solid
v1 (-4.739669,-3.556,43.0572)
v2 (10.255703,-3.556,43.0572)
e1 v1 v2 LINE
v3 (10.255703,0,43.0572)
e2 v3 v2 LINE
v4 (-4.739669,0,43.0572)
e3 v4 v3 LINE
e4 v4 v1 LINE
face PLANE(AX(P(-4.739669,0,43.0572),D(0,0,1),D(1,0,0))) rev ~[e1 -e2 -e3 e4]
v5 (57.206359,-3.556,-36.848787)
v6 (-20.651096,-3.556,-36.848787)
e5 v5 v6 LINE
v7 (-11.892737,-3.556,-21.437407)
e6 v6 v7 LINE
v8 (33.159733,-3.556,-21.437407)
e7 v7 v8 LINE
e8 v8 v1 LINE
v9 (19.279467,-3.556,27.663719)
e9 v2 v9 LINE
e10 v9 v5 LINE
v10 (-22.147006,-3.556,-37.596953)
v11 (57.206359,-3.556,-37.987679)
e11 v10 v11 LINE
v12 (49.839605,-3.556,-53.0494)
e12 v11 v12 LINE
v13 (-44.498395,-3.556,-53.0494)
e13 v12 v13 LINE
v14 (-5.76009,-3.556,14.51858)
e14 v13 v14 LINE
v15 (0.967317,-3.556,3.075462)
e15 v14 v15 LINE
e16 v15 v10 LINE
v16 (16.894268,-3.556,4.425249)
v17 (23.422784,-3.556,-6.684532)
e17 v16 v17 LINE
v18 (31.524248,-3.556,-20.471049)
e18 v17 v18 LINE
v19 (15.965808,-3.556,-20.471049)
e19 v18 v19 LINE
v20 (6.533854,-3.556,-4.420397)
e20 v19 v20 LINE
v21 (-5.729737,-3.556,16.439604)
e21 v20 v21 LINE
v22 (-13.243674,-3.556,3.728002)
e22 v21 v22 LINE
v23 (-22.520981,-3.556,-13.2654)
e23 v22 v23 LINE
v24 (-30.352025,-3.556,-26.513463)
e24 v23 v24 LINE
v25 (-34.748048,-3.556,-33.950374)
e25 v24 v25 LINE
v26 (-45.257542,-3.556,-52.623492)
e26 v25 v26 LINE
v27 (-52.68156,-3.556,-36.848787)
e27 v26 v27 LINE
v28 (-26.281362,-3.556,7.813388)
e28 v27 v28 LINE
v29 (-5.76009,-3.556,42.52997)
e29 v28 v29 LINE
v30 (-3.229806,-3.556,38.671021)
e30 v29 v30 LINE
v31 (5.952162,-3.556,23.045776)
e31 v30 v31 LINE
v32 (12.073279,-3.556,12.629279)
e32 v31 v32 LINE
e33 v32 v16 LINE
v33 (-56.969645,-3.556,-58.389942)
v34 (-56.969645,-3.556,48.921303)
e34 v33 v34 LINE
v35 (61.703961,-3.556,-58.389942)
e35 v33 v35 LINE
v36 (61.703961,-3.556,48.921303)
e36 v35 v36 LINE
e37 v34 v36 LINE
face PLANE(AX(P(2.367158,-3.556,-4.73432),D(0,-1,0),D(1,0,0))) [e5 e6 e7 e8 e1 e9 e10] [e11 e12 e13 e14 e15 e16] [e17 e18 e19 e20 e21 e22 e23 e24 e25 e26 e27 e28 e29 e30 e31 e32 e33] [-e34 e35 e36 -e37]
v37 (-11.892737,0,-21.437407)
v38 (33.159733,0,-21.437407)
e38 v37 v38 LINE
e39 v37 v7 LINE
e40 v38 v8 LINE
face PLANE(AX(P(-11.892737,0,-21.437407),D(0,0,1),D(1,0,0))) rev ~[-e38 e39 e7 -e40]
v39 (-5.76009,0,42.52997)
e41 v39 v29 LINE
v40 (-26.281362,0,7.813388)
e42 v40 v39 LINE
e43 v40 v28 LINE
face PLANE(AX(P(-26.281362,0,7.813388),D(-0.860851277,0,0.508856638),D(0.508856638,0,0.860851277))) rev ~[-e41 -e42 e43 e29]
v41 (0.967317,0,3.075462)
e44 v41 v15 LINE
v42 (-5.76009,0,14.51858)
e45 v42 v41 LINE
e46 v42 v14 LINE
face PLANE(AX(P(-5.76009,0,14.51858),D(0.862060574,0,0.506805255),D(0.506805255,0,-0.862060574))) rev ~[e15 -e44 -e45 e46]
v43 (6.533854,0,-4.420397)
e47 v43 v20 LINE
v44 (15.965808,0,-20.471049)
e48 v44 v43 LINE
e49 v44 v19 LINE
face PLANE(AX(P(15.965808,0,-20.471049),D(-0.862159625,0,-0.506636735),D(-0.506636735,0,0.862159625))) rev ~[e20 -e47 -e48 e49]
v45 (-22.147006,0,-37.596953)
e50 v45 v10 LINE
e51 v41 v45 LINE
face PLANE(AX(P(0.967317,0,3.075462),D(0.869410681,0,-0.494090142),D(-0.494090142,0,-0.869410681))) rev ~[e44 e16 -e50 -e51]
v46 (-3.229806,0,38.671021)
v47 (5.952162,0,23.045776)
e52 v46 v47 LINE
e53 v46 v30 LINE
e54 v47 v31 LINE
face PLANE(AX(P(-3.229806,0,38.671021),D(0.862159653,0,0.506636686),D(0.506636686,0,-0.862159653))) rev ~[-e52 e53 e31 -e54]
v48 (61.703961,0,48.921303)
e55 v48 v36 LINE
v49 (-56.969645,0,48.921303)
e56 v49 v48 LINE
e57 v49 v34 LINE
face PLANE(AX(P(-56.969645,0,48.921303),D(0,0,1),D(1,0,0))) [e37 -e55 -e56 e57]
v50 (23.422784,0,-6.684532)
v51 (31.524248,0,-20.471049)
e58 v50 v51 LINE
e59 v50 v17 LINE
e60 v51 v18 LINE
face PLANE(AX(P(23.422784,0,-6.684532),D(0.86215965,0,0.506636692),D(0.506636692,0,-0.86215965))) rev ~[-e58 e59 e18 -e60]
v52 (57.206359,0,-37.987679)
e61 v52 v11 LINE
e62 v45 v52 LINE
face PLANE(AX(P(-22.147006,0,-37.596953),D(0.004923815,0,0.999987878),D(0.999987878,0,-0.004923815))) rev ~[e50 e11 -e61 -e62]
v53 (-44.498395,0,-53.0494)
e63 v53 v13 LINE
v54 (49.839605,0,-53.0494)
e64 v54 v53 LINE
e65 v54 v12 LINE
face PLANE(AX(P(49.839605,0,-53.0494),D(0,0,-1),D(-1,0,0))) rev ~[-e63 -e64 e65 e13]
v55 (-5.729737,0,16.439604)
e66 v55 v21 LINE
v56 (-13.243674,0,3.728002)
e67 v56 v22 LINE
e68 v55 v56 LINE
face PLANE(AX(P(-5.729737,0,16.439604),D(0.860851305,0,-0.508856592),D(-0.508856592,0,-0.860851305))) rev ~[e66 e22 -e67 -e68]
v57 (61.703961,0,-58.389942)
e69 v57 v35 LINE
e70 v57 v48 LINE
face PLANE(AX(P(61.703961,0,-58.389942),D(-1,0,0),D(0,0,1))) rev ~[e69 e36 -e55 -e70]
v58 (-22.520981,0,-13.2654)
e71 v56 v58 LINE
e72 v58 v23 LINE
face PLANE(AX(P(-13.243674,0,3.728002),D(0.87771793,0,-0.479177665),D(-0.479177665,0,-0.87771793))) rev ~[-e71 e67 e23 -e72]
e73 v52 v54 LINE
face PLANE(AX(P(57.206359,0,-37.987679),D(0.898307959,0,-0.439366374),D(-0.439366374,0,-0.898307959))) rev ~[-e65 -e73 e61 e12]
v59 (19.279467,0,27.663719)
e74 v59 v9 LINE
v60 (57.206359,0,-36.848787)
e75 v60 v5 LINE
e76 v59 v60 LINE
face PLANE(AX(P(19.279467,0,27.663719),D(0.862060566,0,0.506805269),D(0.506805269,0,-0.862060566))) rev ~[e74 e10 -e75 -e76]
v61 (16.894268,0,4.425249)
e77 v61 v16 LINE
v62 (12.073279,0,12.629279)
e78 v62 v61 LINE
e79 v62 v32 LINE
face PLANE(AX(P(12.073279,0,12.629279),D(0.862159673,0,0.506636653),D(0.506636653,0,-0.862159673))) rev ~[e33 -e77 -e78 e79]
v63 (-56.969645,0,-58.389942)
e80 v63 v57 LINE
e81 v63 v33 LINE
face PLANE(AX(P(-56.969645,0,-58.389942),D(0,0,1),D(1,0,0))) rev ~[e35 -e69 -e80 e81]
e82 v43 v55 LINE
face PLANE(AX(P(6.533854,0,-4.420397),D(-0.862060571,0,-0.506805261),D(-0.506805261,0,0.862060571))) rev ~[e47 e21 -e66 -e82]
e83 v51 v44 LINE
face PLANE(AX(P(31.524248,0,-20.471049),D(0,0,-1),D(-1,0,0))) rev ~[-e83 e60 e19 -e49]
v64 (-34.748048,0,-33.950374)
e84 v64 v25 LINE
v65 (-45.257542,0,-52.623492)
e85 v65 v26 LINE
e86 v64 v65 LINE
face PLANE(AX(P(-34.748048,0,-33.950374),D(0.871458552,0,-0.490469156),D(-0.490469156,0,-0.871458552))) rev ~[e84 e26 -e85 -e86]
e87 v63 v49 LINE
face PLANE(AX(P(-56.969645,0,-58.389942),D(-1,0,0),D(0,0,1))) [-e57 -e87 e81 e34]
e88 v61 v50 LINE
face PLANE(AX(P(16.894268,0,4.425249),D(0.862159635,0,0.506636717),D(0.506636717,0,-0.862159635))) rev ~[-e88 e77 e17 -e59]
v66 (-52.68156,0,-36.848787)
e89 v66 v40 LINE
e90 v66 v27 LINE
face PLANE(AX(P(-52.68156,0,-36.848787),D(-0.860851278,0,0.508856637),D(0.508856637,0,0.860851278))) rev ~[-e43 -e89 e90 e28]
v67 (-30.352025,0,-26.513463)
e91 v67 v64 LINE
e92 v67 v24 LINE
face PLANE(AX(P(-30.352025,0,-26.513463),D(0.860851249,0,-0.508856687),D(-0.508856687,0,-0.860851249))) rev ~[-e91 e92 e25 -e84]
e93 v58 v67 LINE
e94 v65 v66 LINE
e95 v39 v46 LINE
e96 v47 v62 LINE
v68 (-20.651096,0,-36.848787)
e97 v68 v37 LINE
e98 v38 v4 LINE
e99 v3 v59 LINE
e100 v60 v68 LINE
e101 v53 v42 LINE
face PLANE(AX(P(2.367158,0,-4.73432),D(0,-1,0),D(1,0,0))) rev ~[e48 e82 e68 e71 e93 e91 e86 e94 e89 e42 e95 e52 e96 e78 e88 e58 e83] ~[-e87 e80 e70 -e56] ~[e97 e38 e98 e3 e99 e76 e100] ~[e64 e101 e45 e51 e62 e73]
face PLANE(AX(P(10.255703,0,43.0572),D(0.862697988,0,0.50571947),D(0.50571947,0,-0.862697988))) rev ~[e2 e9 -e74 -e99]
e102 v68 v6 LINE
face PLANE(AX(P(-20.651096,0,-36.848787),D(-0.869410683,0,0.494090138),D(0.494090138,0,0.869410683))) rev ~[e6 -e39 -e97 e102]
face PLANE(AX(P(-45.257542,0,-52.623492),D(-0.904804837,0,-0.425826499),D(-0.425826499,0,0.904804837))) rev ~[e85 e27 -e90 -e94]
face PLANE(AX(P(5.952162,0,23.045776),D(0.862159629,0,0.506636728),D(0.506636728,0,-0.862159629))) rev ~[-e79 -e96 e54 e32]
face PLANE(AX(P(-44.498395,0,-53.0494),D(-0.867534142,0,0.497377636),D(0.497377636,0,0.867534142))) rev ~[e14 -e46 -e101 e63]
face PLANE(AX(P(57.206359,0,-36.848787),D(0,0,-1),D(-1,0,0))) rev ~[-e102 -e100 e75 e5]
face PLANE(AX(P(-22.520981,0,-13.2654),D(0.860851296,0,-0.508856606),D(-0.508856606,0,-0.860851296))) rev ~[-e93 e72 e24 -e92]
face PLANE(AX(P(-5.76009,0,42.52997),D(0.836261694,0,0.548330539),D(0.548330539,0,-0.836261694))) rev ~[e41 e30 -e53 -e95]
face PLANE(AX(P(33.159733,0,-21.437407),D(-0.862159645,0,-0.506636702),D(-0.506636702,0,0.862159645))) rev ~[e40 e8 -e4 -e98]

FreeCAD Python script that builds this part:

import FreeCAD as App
import Part
import Sketcher
from FreeCAD import Vector
Q = App.Units.Quantity

doc = App.newDocument("Part")
body = doc.addObject("PartDesign::Body", "Body")

# Sketch on XZ plane
sketch1 = body.newObject("Sketcher::SketchObject", "Sketch")
sketch1.AttachmentSupport = (doc.getObject("XZ_Plane"), [""])
sketch1.MapMode = "FlatFace"
sketch1.addGeometry([
    Part.LineSegment(Vector(-56.969645, 48.921303, 0), Vector(-56.969645, -58.389942, 0)),  # 0
    Part.LineSegment(Vector(-56.969645, -58.389942, 0), Vector(61.703961, -58.389942, 0)),  # 1
    Part.LineSegment(Vector(61.703961, -58.389942, 0), Vector(61.703961, 48.921303, 0)),  # 2
    Part.LineSegment(Vector(61.703961, 48.921303, 0), Vector(-56.969645, 48.921303, 0)),  # 3
    Part.LineSegment(Vector(-52.68156, -36.848787, 0), Vector(-26.281362, 7.813388, 0)),  # 4
    Part.LineSegment(Vector(-26.281362, 7.813388, 0), Vector(-5.76009, 42.52997, 0)),  # 5
    Part.LineSegment(Vector(-5.76009, 42.52997, 0), Vector(-3.229806, 38.671021, 0)),  # 6
    Part.LineSegment(Vector(-3.229806, 38.671021, 0), Vector(5.952162, 23.045776, 0)),  # 7
    Part.LineSegment(Vector(5.952162, 23.045776, 0), Vector(12.073279, 12.629279, 0)),  # 8
    Part.LineSegment(Vector(12.073279, 12.629279, 0), Vector(16.894268, 4.425249, 0)),  # 9
    Part.LineSegment(Vector(16.894268, 4.425249, 0), Vector(23.422784, -6.684532, 0)),  # 10
    Part.LineSegment(Vector(23.422784, -6.684532, 0), Vector(31.524248, -20.471049, 0)),  # 11
    Part.LineSegment(Vector(31.524248, -20.471049, 0), Vector(15.965808, -20.471049, 0)),  # 12
    Part.LineSegment(Vector(15.965808, -20.471049, 0), Vector(6.533854, -4.420397, 0)),  # 13
    Part.LineSegment(Vector(6.533854, -4.420397, 0), Vector(-5.729737, 16.439604, 0)),  # 14
    Part.LineSegment(Vector(-5.729737, 16.439604, 0), Vector(-13.243674, 3.728002, 0)),  # 15
    Part.LineSegment(Vector(-13.243674, 3.728002, 0), Vector(-22.520981, -13.2654, 0)),  # 16
    Part.LineSegment(Vector(-22.520981, -13.2654, 0), Vector(-30.352025, -26.513463, 0)),  # 17
    Part.LineSegment(Vector(-30.352025, -26.513463, 0), Vector(-34.748048, -33.950374, 0)),  # 18
    Part.LineSegment(Vector(-34.748048, -33.950374, 0), Vector(-45.257542, -52.623492, 0)),  # 19
    Part.LineSegment(Vector(-45.257542, -52.623492, 0), Vector(-52.68156, -36.848787, 0)),  # 20
    Part.LineSegment(Vector(0.967317, 3.075462, 0), Vector(-22.147006, -37.596953, 0)),  # 21
    Part.LineSegment(Vector(-22.147006, -37.596953, 0), Vector(57.206359, -37.987679, 0)),  # 22
    Part.LineSegment(Vector(57.206359, -37.987679, 0), Vector(49.839605, -53.0494, 0)),  # 23
    Part.LineSegment(Vector(49.839605, -53.0494, 0), Vector(-44.498395, -53.0494, 0)),  # 24
    Part.LineSegment(Vector(-44.498395, -53.0494, 0), Vector(-5.76009, 14.51858, 0)),  # 25
    Part.LineSegment(Vector(-5.76009, 14.51858, 0), Vector(0.967317, 3.075462, 0)),  # 26
    Part.LineSegment(Vector(-11.892737, -21.437407, 0), Vector(33.159733, -21.437407, 0)),  # 27
    Part.LineSegment(Vector(33.159733, -21.437407, 0), Vector(-4.739669, 43.0572, 0)),  # 28
    Part.LineSegment(Vector(-4.739669, 43.0572, 0), Vector(10.255703, 43.0572, 0)),  # 29
    Part.LineSegment(Vector(10.255703, 43.0572, 0), Vector(19.279467, 27.663719, 0)),  # 30
    Part.LineSegment(Vector(19.279467, 27.663719, 0), Vector(57.206359, -36.848787, 0)),  # 31
    Part.LineSegment(Vector(57.206359, -36.848787, 0), Vector(-20.651096, -36.848787, 0)),  # 32
    Part.LineSegment(Vector(-20.651096, -36.848787, 0), Vector(-11.892737, -21.437407, 0)),  # 33
], False)
sketch1.addConstraint([
    Sketcher.Constraint("Coincident", 0, 2, 1, 1),
    Sketcher.Constraint("Coincident", 1, 2, 2, 1),
    Sketcher.Constraint("Coincident", 2, 2, 3, 1),
    Sketcher.Constraint("Coincident", 3, 2, 0, 1),
    Sketcher.Constraint("Coincident", 4, 2, 5, 1),
    Sketcher.Constraint("Coincident", 5, 2, 6, 1),
    Sketcher.Constraint("Coincident", 6, 2, 7, 1),
    Sketcher.Constraint("Coincident", 7, 2, 8, 1),
    Sketcher.Constraint("Coincident", 8, 2, 9, 1),
    Sketcher.Constraint("Coincident", 9, 2, 10, 1),
    Sketcher.Constraint("Coincident", 10, 2, 11, 1),
    Sketcher.Constraint("Coincident", 11, 2, 12, 1),
    Sketcher.Constraint("Coincident", 12, 2, 13, 1),
    Sketcher.Constraint("Coincident", 13, 2, 14, 1),
    Sketcher.Constraint("Coincident", 14, 2, 15, 1),
    Sketcher.Constraint("Coincident", 15, 2, 16, 1),
    Sketcher.Constraint("Coincident", 16, 2, 17, 1),
    Sketcher.Constraint("Coincident", 17, 2, 18, 1),
    Sketcher.Constraint("Coincident", 18, 2, 19, 1),
    Sketcher.Constraint("Coincident", 19, 2, 20, 1),
    Sketcher.Constraint("Coincident", 20, 2, 4, 1),
    Sketcher.Constraint("Coincident", 21, 2, 22, 1),
    Sketcher.Constraint("Coincident", 22, 2, 23, 1),
    Sketcher.Constraint("Coincident", 23, 2, 24, 1),
    Sketcher.Constraint("Coincident", 24, 2, 25, 1),
    Sketcher.Constraint("Coincident", 25, 2, 26, 1),
    Sketcher.Constraint("Coincident", 26, 2, 21, 1),
    Sketcher.Constraint("Coincident", 27, 2, 28, 1),
    Sketcher.Constraint("Coincident", 28, 2, 29, 1),
    Sketcher.Constraint("Coincident", 29, 2, 30, 1),
    Sketcher.Constraint("Coincident", 30, 2, 31, 1),
    Sketcher.Constraint("Coincident", 31, 2, 32, 1),
    Sketcher.Constraint("Coincident", 32, 2, 33, 1),
    Sketcher.Constraint("Coincident", 33, 2, 27, 1),
    Sketcher.Constraint("Vertical", 0),
    Sketcher.Constraint("Horizontal", 1),
    Sketcher.Constraint("Vertical", 2),
    Sketcher.Constraint("Horizontal", 3),
    Sketcher.Constraint("Horizontal", 12),
    Sketcher.Constraint("Horizontal", 24),
    Sketcher.Constraint("Horizontal", 27),
    Sketcher.Constraint("Horizontal", 29),
    Sketcher.Constraint("Horizontal", 32),
    Sketcher.Constraint("DistanceX", 24, 2, 24, 1, 94.338),
    Sketcher.Constraint("DistanceX", 3, 2, 4, 2, Q("1.2082001 in")),
    Sketcher.Constraint("DistanceX", 17, 2, 13, 2, Q("1.4522 in")),
    Sketcher.Constraint("Distance", 5, 40.328199),
    Sketcher.Constraint("Distance", 13, 18.616798),
    Sketcher.Constraint("DistanceX", 12, 2, 12, 1, 15.55844),
    Sketcher.Constraint("DistanceX", 27, 1, 27, 2, 45.05247),
    Sketcher.Constraint("DistanceY", -1, 1, 15, 2, 3.728002),
    Sketcher.Constraint("DistanceY", 16, 2, -1, 1, 13.2654),
    Sketcher.Constraint("DistanceY", 23, 2, -1, 1, 53.0494),
    Sketcher.Constraint("DistanceY", -1, 1, 28, 2, 43.0572),
    Sketcher.Constraint("DistanceX", 7, 2, 2, 2, 55.751799),
    Sketcher.Constraint("DistanceY", 11, 2, 9, 2, 24.896298),
    Sketcher.Constraint("DistanceX", 14, 2, 7, 2, 11.681899),
    Sketcher.Constraint("DistanceY", 13, 2, 14, 2, 20.860001),
    Sketcher.Constraint("DistanceY", 15, 2, 14, 2, 12.711602),
    Sketcher.Constraint("DistanceY", 8, 2, 25, 2, 1.889301),
    Sketcher.Constraint("DistanceX", 9, 2, 30, 2, 2.385199),
    Sketcher.Constraint("DistanceX", 24, 2, 32, 2, 23.847299),
    Sketcher.Constraint("Distance", 10, 12.885991),
    Sketcher.Constraint("Distance", 16, 19.360892),
    Sketcher.Constraint("Distance", 17, 15.389491),
    Sketcher.Constraint("Distance", 18, 8.63902),
    Sketcher.Constraint("Distance", 19, 21.427431),
    Sketcher.Constraint("Distance", 21, 46.781591),
    Sketcher.Constraint("Distance", 30, 17.843418),
    Sketcher.Constraint("DistanceX", 1, 1, 1, 2, 118.673607),
    Sketcher.Constraint("DistanceX", 29, 1, 29, 2, 14.995372),
    Sketcher.Constraint("DistanceX", 32, 2, 32, 1, 77.857455),
    Sketcher.Constraint("DistanceY", 0, 2, 0, 1, 107.311245),
    Sketcher.Constraint("DistanceX", -1, 1, 1, 2, 61.703961),
    Sketcher.Constraint("DistanceX", 5, 2, -1, 1, 5.76009),
    Sketcher.Constraint("DistanceY", -1, 1, 5, 2, 42.52997),
    Sketcher.Constraint("DistanceY", -1, 1, 6, 2, 38.671021),
    Sketcher.Constraint("DistanceX", -1, 1, 8, 2, 12.073279),
    Sketcher.Constraint("DistanceY", -1, 1, 8, 2, 12.629279),
    Sketcher.Constraint("DistanceX", -1, 1, 9, 2, 16.894268),
    Sketcher.Constraint("DistanceY", -1, 1, 9, 2, 4.425249),
    Sketcher.Constraint("DistanceX", -1, 1, 11, 2, 31.524248),
    Sketcher.Constraint("DistanceX", 16, 2, -1, 1, 22.520981),
    Sketcher.Constraint("DistanceX", 20, 2, -1, 1, 52.68156),
    Sketcher.Constraint("DistanceX", -1, 1, 22, 2, 57.206359),
    Sketcher.Constraint("DistanceY", 22, 2, -1, 1, 37.987679),
    Sketcher.Constraint("DistanceX", 25, 2, -1, 1, 5.76009),
    Sketcher.Constraint("DistanceY", -1, 1, 26, 2, 3.075462),
    Sketcher.Constraint("DistanceX", 28, 2, -1, 1, 4.739669),
    Sketcher.Constraint("DistanceX", -1, 1, 31, 2, 57.206359),
    Sketcher.Constraint("DistanceY", 0, 2, 4, 2, 66.20333),
    Sketcher.Constraint("DistanceX", 3, 2, 6, 2, 53.73984),
    Sketcher.Constraint("DistanceY", 10, 2, 9, 2, 11.109781),
    Sketcher.Constraint("DistanceY", 10, 2, 7, 2, 29.730308),
    Sketcher.Constraint("DistanceY", 18, 2, 17, 2, 7.436911),
    Sketcher.Constraint("DistanceY", 0, 2, 19, 2, 5.76645),
    Sketcher.Constraint("DistanceX", 18, 2, 21, 2, 12.601042),
    Sketcher.Constraint("DistanceY", 21, 2, 18, 2, 3.646579),
    Sketcher.Constraint("DistanceX", 10, 2, 27, 2, 9.736949),
    Sketcher.Constraint("DistanceY", 22, 2, 27, 2, 16.550272),
    Sketcher.Constraint("DistanceY", 22, 2, 31, 2, 1.138892),
    Sketcher.Constraint("Distance", 4, 51.881406),
])
pad1 = body.newObject("PartDesign::Pad", "Pad")
pad1.Profile = sketch1
pad1.Length = Q("0.14 in")

doc.recompute()
